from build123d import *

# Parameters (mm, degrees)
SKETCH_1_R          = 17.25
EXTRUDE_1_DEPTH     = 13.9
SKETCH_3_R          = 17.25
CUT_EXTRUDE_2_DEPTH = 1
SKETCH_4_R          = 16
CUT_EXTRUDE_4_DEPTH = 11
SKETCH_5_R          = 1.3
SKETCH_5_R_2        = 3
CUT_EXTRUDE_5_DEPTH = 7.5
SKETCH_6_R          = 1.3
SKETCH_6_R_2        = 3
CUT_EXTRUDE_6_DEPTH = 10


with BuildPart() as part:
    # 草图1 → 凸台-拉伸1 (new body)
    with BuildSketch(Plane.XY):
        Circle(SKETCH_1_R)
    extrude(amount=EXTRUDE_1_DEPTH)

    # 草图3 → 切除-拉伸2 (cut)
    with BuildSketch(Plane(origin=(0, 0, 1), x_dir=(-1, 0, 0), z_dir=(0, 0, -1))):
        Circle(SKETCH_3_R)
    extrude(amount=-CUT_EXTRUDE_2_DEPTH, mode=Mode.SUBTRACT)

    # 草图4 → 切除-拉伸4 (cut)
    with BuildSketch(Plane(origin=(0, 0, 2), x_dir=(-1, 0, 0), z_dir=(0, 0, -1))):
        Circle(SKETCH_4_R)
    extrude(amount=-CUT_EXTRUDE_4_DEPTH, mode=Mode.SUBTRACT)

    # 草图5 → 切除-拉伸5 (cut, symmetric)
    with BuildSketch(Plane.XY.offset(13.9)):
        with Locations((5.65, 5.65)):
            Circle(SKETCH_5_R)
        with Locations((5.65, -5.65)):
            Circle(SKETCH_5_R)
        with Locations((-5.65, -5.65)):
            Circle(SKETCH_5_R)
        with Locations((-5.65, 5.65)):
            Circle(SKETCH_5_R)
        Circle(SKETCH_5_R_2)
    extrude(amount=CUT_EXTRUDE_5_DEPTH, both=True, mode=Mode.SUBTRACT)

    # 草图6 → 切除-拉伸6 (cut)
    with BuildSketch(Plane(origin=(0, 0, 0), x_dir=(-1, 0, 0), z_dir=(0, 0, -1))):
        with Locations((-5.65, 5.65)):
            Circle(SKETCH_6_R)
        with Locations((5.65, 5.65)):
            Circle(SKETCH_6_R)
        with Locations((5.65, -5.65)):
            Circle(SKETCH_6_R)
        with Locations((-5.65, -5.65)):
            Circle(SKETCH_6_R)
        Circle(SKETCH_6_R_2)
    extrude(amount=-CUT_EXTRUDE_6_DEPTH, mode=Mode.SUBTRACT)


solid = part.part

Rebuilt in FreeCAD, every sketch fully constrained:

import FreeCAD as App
import Part
import Sketcher

doc = App.newDocument("Part")
body = doc.addObject("PartDesign::Body", "Body")
body.AllowCompound = True

# Sketch on XY plane
sketch1 = body.newObject("Sketcher::SketchObject", "Sketch")
sketch1.AttachmentSupport = (doc.getObject("XY_Plane"), [""])
sketch1.MapMode = "FlatFace"
sketch1.addGeometry(Part.Circle(App.Vector(0, 0, 0), App.Vector(0, 0, 1), 17), False)
sketch1.addConstraint([
    Sketcher.Constraint("Coincident", 0, 3, -1, 1),
    Sketcher.Constraint("Diameter", 0, 34.5),
])
pad1 = body.newObject("PartDesign::Pad", "Pad")
pad1.Profile = sketch1
pad1.Length = 13.9

# Sketch on XY plane
sketch2 = body.newObject("Sketcher::SketchObject", "Sketch001")
sketch2.AttachmentSupport = (doc.getObject("XY_Plane"), [""])
sketch2.MapMode = "FlatFace"
sketch2.AttachmentOffset = App.Placement(App.Vector(0, 0, 1), App.Rotation())
sketch2.addGeometry(Part.Circle(App.Vector(0, 0, 0), App.Vector(0, 0, 1), 17), False)
sketch2.addConstraint([
    Sketcher.Constraint("Coincident", 0, 3, -1, 1),
    Sketcher.Constraint("Diameter", 0, 34.5),
])
pocket1 = body.newObject("PartDesign::Pocket", "Pocket")
pocket1.Profile = sketch2
pocket1.Length = 1
pocket1.Reversed = True

# Sketch on XY plane
sketch3 = body.newObject("Sketcher::SketchObject", "Sketch002")
sketch3.AttachmentSupport = (doc.getObject("XY_Plane"), [""])
sketch3.MapMode = "FlatFace"
sketch3.AttachmentOffset = App.Placement(App.Vector(0, 0, 2), App.Rotation())
sketch3.addGeometry(Part.Circle(App.Vector(0, 0, 0), App.Vector(0, 0, 1), 16), False)
sketch3.addConstraint([
    Sketcher.Constraint("Coincident", 0, 3, -1, 1),
    Sketcher.Constraint("Diameter", 0, 32.0),
])
pocket2 = body.newObject("PartDesign::Pocket", "Pocket001")
pocket2.Profile = sketch3
pocket2.Length = 11
pocket2.Reversed = True

# Sketch on XY plane
sketch4 = body.newObject("Sketcher::SketchObject", "Sketch003")
sketch4.AttachmentSupport = (doc.getObject("XY_Plane"), [""])
sketch4.MapMode = "FlatFace"
sketch4.AttachmentOffset = App.Placement(App.Vector(0, 0, 13.9), App.Rotation())
sketch4.addGeometry([
    Part.Circle(App.Vector(5.7, 5.7, 0), App.Vector(0, 0, 1), 1.3),  # 0
    Part.Circle(App.Vector(5.7, -5.7, 0), App.Vector(0, 0, 1), 1.3),  # 1
    Part.Circle(App.Vector(-5.7, -5.7, 0), App.Vector(0, 0, 1), 1.3),  # 2
    Part.Circle(App.Vector(-5.7, 5.7, 0), App.Vector(0, 0, 1), 1.3),  # 3
    Part.Circle(App.Vector(0, 0, 0), App.Vector(0, 0, 1), 3),  # 4
], False)
sketch4.addConstraint([
    Sketcher.Constraint("Coincident", 4, 3, -1, 1),
    Sketcher.Constraint("Equal", 0, 1),
    Sketcher.Constraint("Equal", 1, 2),
    Sketcher.Constraint("Equal", 2, 3),
    Sketcher.Constraint("Symmetric", 0, 3, 2, 3, -1, 1),
    Sketcher.Constraint("Symmetric", 1, 3, 3, 3, -1, 1),
    Sketcher.Constraint("Symmetric", 1, 3, 2, 3, -2),
    Sketcher.Constraint("Diameter", 4, 6.0),
    Sketcher.Constraint("Diameter", 0, 2.6),
    Sketcher.Constraint("DistanceY", 1, 3, 0, 3, 11.3),
    Sketcher.Constraint("DistanceX", 2, 3, 1, 3, 11.3),
])
pocket3 = body.newObject("PartDesign::Pocket", "Pocket002")
pocket3.Profile = sketch4
pocket3.Length = 15
pocket3.Midplane = True

# Sketch on XY plane
sketch5 = body.newObject("Sketcher::SketchObject", "Sketch004")
sketch5.AttachmentSupport = (doc.getObject("XY_Plane"), [""])
sketch5.MapMode = "FlatFace"
sketch5.addGeometry([
    Part.Circle(App.Vector(5.7, 5.7, 0), App.Vector(0, 0, 1), 1.3),  # 0
    Part.Circle(App.Vector(-5.7, 5.7, 0), App.Vector(0, 0, 1), 1.3),  # 1
    Part.Circle(App.Vector(-5.7, -5.7, 0), App.Vector(0, 0, 1), 1.3),  # 2
    Part.Circle(App.Vector(5.7, -5.7, 0), App.Vector(0, 0, 1), 1.3),  # 3
    Part.Circle(App.Vector(0, 0, 0), App.Vector(0, 0, 1), 3),  # 4
], False)
sketch5.addConstraint([
    Sketcher.Constraint("Coincident", 4, 3, -1, 1),
    Sketcher.Constraint("Equal", 0, 1),
    Sketcher.Constraint("Equal", 1, 2),
    Sketcher.Constraint("Equal", 2, 3),
    Sketcher.Constraint("Symmetric", 0, 3, 2, 3, -1, 1),
    Sketcher.Constraint("Symmetric", 1, 3, 3, 3, -1, 1),
    Sketcher.Constraint("Symmetric", 0, 3, 1, 3, -2),
    Sketcher.Constraint("Diameter", 4, 6.0),
    Sketcher.Constraint("Diameter", 0, 2.6),
    Sketcher.Constraint("DistanceX", 1, 3, 0, 3, 11.3),
    Sketcher.Constraint("DistanceY", 2, 3, 1, 3, 11.3),
])
pocket4 = body.newObject("PartDesign::Pocket", "Pocket003")
pocket4.Profile = sketch5
pocket4.Length = 10
pocket4.Reversed = True

doc.recompute()
